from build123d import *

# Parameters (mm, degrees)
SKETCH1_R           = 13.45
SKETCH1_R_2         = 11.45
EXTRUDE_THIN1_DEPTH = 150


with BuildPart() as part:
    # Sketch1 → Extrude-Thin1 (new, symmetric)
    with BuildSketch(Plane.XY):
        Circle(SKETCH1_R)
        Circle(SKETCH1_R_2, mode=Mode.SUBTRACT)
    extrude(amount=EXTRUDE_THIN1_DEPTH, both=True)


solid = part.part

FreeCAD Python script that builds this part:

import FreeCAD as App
import Part
import Sketcher

V = App.Vector

doc = App.newDocument("Part")
body = doc.addObject("PartDesign::Body", "Body")

# Sketch on XY plane
sketch1 = body.newObject("Sketcher::SketchObject", "Sketch")
sketch1.AttachmentSupport = (doc.getObject("XY_Plane"), [""])
sketch1.MapMode = "FlatFace"
sketch1.addGeometry([
    Part.Circle(V(0, 0, 0), V(0, 0, 1), 13.45),
    Part.Circle(V(0, 0, 0), V(0, 0, 1), 11.45),
], False)
sketch1.addConstraint([
    Sketcher.Constraint("Coincident", 0, 3, -1, 1),
    Sketcher.Constraint("Coincident", 1, 3, -1, 1),
    Sketcher.Constraint("Diameter", 0, 26.9),
    Sketcher.Constraint("Diameter", 1, 22.9),
])
pad1 = body.newObject("PartDesign::Pad", "Pad")
pad1.Profile = sketch1
pad1.Length = 300
pad1.Midplane = True

doc.recompute()
